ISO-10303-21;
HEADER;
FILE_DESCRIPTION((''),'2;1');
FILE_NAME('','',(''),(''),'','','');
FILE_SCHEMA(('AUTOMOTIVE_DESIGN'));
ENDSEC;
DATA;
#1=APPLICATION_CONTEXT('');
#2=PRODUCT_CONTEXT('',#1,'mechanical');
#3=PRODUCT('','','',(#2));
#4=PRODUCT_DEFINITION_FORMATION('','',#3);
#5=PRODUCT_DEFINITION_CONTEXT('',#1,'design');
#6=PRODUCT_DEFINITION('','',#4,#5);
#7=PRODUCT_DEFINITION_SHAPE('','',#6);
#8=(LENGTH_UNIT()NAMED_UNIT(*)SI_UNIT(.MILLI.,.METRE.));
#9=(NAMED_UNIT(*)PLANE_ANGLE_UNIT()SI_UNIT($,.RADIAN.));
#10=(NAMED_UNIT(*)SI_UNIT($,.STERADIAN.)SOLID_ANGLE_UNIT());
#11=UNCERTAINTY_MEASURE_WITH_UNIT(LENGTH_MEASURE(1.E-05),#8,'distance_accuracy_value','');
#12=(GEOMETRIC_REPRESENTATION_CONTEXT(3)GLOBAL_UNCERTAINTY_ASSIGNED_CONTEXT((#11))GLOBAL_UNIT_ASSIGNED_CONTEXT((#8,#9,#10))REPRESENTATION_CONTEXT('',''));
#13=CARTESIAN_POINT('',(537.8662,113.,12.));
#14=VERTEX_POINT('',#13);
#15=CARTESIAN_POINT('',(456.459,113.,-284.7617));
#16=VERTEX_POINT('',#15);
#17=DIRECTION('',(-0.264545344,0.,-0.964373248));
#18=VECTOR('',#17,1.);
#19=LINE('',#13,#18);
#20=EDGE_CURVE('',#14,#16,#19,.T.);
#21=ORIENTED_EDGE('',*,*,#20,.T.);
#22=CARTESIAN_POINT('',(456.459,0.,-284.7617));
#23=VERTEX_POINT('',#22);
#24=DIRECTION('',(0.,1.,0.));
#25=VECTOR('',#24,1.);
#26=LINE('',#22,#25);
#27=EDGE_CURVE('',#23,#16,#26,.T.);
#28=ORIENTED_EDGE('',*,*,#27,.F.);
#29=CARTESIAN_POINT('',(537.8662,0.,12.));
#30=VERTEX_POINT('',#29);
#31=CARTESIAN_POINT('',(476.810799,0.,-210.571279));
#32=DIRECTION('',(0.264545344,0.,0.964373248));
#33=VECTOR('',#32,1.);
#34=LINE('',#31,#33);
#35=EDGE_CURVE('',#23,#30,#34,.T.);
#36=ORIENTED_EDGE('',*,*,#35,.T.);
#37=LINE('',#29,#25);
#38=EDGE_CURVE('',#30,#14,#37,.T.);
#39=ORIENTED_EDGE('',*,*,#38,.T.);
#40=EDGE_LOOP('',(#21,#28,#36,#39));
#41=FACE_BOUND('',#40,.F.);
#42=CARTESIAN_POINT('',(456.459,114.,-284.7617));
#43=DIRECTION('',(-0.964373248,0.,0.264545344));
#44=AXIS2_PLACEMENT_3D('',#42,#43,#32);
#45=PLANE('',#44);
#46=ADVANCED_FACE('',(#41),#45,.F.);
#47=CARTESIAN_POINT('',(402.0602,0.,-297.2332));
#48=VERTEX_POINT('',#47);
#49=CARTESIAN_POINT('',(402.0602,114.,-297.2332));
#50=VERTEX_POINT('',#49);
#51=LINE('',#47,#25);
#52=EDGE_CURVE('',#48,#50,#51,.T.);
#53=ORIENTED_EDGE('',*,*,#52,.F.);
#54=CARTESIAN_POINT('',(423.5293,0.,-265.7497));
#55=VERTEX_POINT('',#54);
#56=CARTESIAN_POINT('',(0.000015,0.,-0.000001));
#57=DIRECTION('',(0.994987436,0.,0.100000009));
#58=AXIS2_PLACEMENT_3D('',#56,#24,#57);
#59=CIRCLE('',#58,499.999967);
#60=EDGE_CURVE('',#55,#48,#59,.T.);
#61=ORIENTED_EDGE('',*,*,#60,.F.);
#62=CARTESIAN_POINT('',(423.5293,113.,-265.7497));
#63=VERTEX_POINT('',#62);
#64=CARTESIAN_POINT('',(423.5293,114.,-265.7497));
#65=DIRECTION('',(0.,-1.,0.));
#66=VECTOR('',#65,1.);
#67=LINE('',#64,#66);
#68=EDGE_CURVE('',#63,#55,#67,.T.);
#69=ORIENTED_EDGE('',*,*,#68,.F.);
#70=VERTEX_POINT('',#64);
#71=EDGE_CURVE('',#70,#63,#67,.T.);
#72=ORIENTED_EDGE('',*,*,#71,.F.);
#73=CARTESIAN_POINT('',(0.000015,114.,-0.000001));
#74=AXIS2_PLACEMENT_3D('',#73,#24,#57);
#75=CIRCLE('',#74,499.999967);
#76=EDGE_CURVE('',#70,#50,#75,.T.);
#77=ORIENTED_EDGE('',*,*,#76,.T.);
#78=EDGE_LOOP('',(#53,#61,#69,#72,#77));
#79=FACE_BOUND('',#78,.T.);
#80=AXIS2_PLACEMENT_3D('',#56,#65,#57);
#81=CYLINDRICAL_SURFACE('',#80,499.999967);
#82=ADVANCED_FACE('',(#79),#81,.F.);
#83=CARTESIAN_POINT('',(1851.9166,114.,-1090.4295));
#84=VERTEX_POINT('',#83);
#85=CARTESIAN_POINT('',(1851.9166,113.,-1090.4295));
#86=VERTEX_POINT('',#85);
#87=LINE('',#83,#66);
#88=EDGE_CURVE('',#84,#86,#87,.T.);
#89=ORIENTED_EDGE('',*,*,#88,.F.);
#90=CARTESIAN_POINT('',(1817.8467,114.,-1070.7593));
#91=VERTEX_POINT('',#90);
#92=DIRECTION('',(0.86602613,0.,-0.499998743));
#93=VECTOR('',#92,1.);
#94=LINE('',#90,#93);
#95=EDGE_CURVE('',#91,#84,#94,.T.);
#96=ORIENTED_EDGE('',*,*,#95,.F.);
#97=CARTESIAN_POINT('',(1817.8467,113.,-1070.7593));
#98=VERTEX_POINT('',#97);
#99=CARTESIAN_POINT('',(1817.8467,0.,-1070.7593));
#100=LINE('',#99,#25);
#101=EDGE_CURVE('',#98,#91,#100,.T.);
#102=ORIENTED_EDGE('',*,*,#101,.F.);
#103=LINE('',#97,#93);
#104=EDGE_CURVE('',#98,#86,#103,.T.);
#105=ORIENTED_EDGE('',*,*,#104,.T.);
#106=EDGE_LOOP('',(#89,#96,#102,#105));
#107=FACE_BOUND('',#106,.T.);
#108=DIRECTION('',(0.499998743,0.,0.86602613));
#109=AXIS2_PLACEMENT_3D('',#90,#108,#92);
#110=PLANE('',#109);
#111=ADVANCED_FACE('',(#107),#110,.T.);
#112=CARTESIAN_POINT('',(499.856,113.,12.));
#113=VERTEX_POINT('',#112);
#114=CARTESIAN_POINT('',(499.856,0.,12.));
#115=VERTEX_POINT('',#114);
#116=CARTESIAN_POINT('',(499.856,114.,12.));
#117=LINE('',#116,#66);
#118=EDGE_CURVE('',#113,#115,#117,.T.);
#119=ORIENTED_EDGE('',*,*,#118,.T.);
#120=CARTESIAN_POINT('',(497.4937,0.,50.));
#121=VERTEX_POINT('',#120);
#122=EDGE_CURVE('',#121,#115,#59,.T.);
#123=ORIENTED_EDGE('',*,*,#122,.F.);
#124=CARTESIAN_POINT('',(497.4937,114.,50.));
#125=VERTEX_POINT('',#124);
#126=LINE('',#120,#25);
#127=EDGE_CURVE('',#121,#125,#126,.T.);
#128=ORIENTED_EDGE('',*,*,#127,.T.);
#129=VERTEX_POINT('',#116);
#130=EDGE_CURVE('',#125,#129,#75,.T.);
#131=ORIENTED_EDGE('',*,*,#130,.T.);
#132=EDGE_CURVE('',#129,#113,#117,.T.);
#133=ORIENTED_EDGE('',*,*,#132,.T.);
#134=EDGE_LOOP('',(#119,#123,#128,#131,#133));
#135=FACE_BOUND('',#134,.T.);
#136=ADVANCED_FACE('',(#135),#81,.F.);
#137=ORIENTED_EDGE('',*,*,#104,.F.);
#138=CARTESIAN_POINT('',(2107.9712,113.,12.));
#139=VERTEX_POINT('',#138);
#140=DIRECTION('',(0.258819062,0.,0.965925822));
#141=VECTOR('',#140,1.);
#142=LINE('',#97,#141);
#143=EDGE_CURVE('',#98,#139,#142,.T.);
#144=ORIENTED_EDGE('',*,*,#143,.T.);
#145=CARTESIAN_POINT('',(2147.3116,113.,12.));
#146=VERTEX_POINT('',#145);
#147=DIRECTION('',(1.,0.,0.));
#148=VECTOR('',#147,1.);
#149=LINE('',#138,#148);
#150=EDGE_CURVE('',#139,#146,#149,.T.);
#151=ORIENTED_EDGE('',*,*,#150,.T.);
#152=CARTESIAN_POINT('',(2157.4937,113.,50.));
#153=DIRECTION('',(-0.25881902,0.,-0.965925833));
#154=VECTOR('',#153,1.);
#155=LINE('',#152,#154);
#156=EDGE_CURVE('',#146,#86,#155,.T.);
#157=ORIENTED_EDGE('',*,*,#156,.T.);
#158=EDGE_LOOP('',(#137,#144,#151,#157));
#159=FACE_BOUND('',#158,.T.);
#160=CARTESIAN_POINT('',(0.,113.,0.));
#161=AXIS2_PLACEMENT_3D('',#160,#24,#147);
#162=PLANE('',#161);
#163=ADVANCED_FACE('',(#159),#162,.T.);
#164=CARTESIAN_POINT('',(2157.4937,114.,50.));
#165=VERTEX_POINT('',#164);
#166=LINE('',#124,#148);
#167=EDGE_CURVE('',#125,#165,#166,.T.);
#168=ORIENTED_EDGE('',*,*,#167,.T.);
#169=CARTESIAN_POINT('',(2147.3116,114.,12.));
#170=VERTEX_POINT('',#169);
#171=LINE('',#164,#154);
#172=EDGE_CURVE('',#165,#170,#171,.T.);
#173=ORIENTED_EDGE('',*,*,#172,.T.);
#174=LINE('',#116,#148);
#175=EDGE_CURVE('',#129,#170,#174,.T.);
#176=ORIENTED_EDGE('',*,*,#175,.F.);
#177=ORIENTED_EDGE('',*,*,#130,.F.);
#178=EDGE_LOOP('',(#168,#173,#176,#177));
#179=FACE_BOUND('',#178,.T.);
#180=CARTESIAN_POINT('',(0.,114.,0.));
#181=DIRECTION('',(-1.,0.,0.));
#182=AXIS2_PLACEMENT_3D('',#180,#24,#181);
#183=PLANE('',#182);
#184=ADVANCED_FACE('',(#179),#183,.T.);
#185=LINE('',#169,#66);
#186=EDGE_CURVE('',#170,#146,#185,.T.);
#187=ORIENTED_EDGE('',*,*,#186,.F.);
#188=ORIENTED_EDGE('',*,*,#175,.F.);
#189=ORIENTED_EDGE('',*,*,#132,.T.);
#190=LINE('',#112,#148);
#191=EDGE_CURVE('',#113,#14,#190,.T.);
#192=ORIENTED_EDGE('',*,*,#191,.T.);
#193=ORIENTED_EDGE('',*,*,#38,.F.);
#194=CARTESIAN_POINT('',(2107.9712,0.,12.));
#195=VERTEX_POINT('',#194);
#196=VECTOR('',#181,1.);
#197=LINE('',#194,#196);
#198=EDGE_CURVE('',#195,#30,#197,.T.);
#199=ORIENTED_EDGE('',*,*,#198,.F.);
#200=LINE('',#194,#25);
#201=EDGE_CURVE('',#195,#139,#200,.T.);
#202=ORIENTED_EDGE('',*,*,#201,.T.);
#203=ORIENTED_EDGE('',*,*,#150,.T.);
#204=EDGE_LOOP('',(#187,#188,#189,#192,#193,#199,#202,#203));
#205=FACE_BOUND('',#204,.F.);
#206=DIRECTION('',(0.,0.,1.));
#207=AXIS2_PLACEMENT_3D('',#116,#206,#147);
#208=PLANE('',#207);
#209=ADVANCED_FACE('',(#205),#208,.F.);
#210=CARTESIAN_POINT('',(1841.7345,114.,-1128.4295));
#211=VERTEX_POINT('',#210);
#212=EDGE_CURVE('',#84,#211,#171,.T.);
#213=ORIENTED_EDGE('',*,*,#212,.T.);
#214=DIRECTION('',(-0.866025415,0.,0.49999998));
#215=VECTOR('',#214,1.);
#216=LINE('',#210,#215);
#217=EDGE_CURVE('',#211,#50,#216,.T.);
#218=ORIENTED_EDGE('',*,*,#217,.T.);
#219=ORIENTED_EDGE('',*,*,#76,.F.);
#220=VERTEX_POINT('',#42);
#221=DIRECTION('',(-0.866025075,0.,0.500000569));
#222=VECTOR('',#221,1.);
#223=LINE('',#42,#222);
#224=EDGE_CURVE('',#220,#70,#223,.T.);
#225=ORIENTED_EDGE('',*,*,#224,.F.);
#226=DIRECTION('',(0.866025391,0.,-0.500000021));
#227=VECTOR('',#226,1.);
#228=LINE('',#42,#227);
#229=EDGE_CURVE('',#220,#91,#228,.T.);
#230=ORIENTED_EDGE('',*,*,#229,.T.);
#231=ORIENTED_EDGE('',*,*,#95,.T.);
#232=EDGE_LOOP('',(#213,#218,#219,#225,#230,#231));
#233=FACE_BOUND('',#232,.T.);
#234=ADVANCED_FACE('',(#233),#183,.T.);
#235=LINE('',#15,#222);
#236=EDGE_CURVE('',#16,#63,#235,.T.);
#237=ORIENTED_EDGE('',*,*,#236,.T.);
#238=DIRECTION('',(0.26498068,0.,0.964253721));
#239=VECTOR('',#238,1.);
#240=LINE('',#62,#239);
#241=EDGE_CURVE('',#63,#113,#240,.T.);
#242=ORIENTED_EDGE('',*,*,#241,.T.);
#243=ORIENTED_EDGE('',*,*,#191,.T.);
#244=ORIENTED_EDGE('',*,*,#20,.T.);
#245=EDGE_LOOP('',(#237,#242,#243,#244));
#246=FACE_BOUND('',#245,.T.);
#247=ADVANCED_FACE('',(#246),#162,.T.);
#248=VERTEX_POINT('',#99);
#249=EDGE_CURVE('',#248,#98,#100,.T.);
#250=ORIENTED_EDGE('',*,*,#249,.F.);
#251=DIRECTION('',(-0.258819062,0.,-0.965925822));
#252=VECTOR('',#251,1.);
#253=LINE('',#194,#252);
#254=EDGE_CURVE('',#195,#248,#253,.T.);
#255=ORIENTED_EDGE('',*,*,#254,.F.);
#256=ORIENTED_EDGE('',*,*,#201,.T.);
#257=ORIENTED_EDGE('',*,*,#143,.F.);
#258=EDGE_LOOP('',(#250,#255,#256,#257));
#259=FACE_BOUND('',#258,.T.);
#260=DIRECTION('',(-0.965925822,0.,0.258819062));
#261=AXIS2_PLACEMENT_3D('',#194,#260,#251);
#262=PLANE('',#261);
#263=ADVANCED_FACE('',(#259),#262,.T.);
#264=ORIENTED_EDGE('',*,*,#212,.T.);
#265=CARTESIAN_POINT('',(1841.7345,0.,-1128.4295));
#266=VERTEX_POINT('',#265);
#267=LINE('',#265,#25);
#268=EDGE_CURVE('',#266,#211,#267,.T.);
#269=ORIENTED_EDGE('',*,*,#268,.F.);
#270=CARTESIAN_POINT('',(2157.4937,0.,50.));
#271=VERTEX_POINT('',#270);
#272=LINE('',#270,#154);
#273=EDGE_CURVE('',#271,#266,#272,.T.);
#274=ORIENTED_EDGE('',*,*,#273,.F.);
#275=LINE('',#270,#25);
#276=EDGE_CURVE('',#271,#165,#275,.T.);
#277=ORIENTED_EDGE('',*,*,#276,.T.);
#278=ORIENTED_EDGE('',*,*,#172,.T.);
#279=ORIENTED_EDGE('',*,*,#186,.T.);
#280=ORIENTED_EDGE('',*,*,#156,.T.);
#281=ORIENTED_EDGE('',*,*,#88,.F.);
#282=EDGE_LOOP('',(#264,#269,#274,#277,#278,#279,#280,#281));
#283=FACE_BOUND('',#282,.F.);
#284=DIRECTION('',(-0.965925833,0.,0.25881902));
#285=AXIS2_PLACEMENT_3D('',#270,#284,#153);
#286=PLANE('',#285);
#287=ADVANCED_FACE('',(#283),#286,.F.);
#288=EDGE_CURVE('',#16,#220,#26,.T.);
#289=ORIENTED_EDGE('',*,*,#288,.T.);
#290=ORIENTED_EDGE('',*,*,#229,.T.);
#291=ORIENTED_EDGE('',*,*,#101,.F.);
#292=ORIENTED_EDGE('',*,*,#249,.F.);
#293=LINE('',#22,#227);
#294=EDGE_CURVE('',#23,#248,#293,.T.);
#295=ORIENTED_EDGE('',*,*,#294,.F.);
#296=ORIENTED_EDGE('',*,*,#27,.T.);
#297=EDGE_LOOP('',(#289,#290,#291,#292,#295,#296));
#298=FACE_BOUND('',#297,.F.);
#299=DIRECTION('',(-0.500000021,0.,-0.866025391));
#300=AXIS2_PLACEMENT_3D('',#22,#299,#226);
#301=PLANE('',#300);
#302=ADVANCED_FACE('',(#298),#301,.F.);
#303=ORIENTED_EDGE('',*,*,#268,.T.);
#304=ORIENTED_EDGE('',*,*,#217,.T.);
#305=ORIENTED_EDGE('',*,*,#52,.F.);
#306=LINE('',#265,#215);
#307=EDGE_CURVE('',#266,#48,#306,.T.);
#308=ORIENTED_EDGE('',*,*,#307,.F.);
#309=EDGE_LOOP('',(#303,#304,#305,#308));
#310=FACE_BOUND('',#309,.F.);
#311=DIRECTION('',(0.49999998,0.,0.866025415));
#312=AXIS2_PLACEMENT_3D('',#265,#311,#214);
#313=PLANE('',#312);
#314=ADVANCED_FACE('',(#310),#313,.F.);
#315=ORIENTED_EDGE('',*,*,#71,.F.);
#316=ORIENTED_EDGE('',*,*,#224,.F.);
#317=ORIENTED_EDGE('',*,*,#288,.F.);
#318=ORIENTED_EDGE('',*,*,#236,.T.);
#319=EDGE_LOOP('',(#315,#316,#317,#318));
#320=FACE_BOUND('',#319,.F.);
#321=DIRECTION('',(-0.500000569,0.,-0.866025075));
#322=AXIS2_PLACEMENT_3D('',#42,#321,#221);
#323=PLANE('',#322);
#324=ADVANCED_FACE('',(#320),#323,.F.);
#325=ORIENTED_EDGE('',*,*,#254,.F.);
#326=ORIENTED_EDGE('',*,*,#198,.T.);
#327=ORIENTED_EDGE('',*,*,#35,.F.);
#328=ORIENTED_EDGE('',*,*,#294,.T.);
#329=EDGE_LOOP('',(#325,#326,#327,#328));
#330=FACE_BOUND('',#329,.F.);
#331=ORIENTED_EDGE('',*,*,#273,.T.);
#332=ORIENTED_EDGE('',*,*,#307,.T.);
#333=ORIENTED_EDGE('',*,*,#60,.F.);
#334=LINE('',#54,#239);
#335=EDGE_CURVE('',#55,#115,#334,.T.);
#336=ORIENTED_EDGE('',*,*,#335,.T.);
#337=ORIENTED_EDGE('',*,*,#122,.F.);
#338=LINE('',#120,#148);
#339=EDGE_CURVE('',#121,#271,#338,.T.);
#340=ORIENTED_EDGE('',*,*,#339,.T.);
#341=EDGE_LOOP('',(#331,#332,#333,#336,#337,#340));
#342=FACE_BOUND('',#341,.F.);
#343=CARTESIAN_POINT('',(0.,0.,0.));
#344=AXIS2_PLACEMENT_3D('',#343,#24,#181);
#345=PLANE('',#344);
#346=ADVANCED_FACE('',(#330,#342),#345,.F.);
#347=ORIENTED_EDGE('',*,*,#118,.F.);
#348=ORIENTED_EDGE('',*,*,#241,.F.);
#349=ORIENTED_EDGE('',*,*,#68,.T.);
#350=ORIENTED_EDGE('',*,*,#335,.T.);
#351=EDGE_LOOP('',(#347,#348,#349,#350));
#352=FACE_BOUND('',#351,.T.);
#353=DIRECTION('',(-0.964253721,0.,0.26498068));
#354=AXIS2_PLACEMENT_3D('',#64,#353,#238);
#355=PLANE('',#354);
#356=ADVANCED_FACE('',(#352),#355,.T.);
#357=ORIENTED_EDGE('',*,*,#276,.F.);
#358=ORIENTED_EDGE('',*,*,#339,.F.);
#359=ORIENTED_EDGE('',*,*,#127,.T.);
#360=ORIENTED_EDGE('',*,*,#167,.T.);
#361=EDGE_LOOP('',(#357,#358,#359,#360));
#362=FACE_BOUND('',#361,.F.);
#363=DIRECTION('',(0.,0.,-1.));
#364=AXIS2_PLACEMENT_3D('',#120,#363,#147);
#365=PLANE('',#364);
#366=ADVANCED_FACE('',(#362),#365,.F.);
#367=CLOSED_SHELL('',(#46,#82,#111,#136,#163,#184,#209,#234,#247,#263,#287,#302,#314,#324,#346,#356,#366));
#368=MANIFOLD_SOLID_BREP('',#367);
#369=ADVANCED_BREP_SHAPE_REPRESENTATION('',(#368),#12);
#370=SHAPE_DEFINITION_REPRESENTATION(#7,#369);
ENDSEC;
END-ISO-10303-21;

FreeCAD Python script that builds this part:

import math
import FreeCAD as App
import Part
import Sketcher

V = App.Vector
Q = App.Units.Quantity

doc = App.newDocument("Part")
params = doc.addObject("Spreadsheet::Sheet", "Params")
for row, (alias, value) in enumerate([
    ("sketch1_radius", "500 mm"),
    ("sketch1_width", "1660 mm"),
    ("sketch1_length", "1220 mm"),
    ("sketch1_radius2", "538 mm"),
    ("pad1_length", "114 mm"),
    ("sketch2_radius", "500 mm"),
    ("pad2_length", "114 mm"),
    ("sketch3_radius", "538 mm"),
    ("pocket1_length", "3500 mm"),
    ("pocket2_length", "1 mm"),
    ("pocket3_length", "1 mm"),
], start=1):
    params.set(f"A{row}", alias)
    params.set(f"B{row}", "=" + value)
    params.setAlias(f"B{row}", alias)

body = doc.addObject("PartDesign::Body", "Body")

sketch1 = doc.addObject("Sketcher::SketchObject", "Sketch")
body.addObject(sketch1)
sketch1.AttachmentSupport = (doc.XZ_Plane, [""])
sketch1.MapMode = "FlatFace"
sketch1.addGeometry([
    Part.ArcOfCircle(Part.Circle(V(0, 0, 0), V(0, 0, 1), 499.999982), math.radians(-36.474604), math.radians(5.739171)),
    Part.LineSegment(V(497.4937, 50, 0), V(2157.4937, 50, 0)),
    Part.LineSegment(V(2157.4937, 50, 0), V(1841.7345, -1128.4295, 0)),
    Part.LineSegment(V(1841.7345, -1128.4295, 0), V(402.0602, -297.2332, 0)),
    Part.LineSegment(V(2107.9712, 12, 0), V(537.8662, 12, 0)),
    Part.ArcOfCircle(Part.Circle(V(0, 0, 0), V(0, 0, 1), 538.000046), math.radians(-31.957955), math.radians(1.278079)),
    Part.LineSegment(V(456.459, -284.7617, 0), V(1817.8467, -1070.7593, 0)),
    Part.LineSegment(V(1817.8467, -1070.7593, 0), V(2107.9712, 12, 0)),
], False)
sketch1.addConstraint([
    Sketcher.Constraint("Coincident", 0, 2, 1, 1),
    Sketcher.Constraint("Coincident", 1, 2, 2, 1),
    Sketcher.Constraint("Coincident", 2, 2, 3, 1),
    Sketcher.Constraint("Coincident", 3, 2, 0, 1),
    Sketcher.Constraint("Coincident", 4, 2, 5, 2),
    Sketcher.Constraint("Coincident", 5, 1, 6, 1),
    Sketcher.Constraint("Coincident", 6, 2, 7, 1),
    Sketcher.Constraint("Coincident", 7, 2, 4, 1),
    Sketcher.Constraint("Horizontal", 1),
    Sketcher.Constraint("Horizontal", 4),
    Sketcher.Constraint("Coincident", 0, 3, -1, 1),
    Sketcher.Constraint("Coincident", 5, 3, -1, 1),
    Sketcher.Constraint("Parallel", 3, 6),
    Sketcher.Constraint("Parallel", 2, 7),
    Sketcher.Constraint("Radius", 0, 500.0),
    Sketcher.Constraint("DistanceX", 1, 1, 1, 2, 1660.0),
    Sketcher.Constraint("Angle", 3, Q("150 deg")),
    Sketcher.Constraint("Angle", 7, Q("75 deg")),
    Sketcher.Constraint("Distance", 2, 1220.0),
    Sketcher.Constraint("DistanceY", -1, 1, 1, 2, 50.0),
    Sketcher.Constraint("Radius", 5, 538.0),
    Sketcher.Constraint("DistanceY", -1, 1, 4, 2, 12.0),
    Sketcher.Constraint("DistanceX", 4, 2, 4, 1, 1570.105),
    Sketcher.Constraint("Distance", 7, 1120.955),
])
sketch1.setExpression("Constraints[14]", "Params.sketch1_radius")
sketch1.setExpression("Constraints[15]", "Params.sketch1_width")
sketch1.setExpression("Constraints[18]", "Params.sketch1_length")
sketch1.setExpression("Constraints[20]", "Params.sketch1_radius2")
pad1 = doc.addObject("PartDesign::Pad", "Pad")
body.addObject(pad1)
pad1.Profile = sketch1
pad1.setExpression("Length", "Params.pad1_length")
pad1.Reversed = True

sketch2 = doc.addObject("Sketcher::SketchObject", "Sketch001")
body.addObject(sketch2)
sketch2.AttachmentSupport = (doc.XZ_Plane, [""])
sketch2.MapMode = "FlatFace"
sketch2.AttachmentOffset = App.Placement(V(0, 0, -114), App.Rotation())
sketch2.addGeometry([
    Part.LineSegment(V(423.5293, -265.7497, 0), V(499.856, 12, 0)),
    Part.ArcOfCircle(Part.Circle(V(0, 0, 0), V(0, 0, 1), 499.999982), math.radians(-32.106821), math.radians(1.375231)),
], False)
sketch2.addConstraint([
    Sketcher.Constraint("Coincident", 0, 1, 1, 1),
    Sketcher.Constraint("Coincident", 1, 2, 0, 2),
    Sketcher.Constraint("Coincident", 1, 3, -1, 1),
    Sketcher.Constraint("Radius", 1, 500.0),
    Sketcher.Constraint("Distance", 0, 288.0463),
    Sketcher.Constraint("DistanceX", -1, 1, 0, 1, 423.5293),
])
sketch2.setExpression("Constraints[3]", "Params.sketch2_radius")
pad2 = doc.addObject("PartDesign::Pad", "Pad001")
body.addObject(pad2)
pad2.Profile = sketch2
pad2.setExpression("Length", "Params.pad2_length")

sketch3 = doc.addObject("Sketcher::SketchObject", "Sketch002")
body.addObject(sketch3)
sketch3.AttachmentSupport = (doc.XZ_Plane, [""])
sketch3.MapMode = "FlatFace"
sketch3.AttachmentOffset = App.Placement(V(0, 0, -114), App.Rotation())
sketch3.addGeometry([
    Part.LineSegment(V(456.459, -284.7617, 0), V(537.8662, 12, 0)),
    Part.ArcOfCircle(Part.Circle(V(0, 0, 0), V(0, 0, 1), 538.000046), math.radians(-31.957955), math.radians(1.278079)),
], False)
sketch3.addConstraint([
    Sketcher.Constraint("Coincident", 0, 1, 1, 1),
    Sketcher.Constraint("Coincident", 1, 2, 0, 2),
    Sketcher.Constraint("Coincident", 1, 3, -1, 1),
    Sketcher.Constraint("Radius", 1, 538.0),
    Sketcher.Constraint("Angle", 0, Q("74.66 deg")),
    Sketcher.Constraint("Distance", 0, 307.725),
])
sketch3.setExpression("Constraints[3]", "Params.sketch3_radius")
pocket1 = doc.addObject("PartDesign::Pocket", "Pocket")
body.addObject(pocket1)
pocket1.Profile = sketch3
pocket1.setExpression("Length", "Params.pocket1_length")
pocket1.Reversed = True

sketch4 = doc.addObject("Sketcher::SketchObject", "Sketch003")
body.addObject(sketch4)
sketch4.AttachmentSupport = (doc.XZ_Plane, [""])
sketch4.MapMode = "FlatFace"
sketch4.AttachmentOffset = App.Placement(V(0, 0, -114), App.Rotation())
sketch4.addGeometry([
    Part.LineSegment(V(499.856, 12, 0), V(537.8662, 12, 0)),
    Part.LineSegment(V(537.8662, 12, 0), V(456.459, -284.7617, 0)),
    Part.LineSegment(V(456.459, -284.7617, 0), V(423.5293, -265.7497, 0)),
    Part.LineSegment(V(423.5293, -265.7497, 0), V(499.856, 12, 0)),
], False)
sketch4.addConstraint([
    Sketcher.Constraint("Coincident", 0, 2, 1, 1),
    Sketcher.Constraint("Coincident", 1, 2, 2, 1),
    Sketcher.Constraint("Coincident", 2, 2, 3, 1),
    Sketcher.Constraint("Coincident", 3, 2, 0, 1),
    Sketcher.Constraint("Horizontal", 0),
    Sketcher.Constraint("DistanceY", -1, 1, 0, 2, 12.0),
    Sketcher.Constraint("Distance", 1, 307.725),
    Sketcher.Constraint("Distance", 2, 38.024),
    Sketcher.Constraint("DistanceX", 0, 1, 0, 2, 38.0102),
    Sketcher.Constraint("DistanceX", -1, 1, 1, 2, 456.459),
    Sketcher.Constraint("DistanceX", -1, 1, 3, 2, 499.856),
    Sketcher.Constraint("DistanceY", 1, 2, 2, 2, 19.012),
])
pocket2 = doc.addObject("PartDesign::Pocket", "Pocket001")
body.addObject(pocket2)
pocket2.Profile = sketch4
pocket2.setExpression("Length", "Params.pocket2_length")
pocket2.Reversed = True

sketch5 = doc.addObject("Sketcher::SketchObject", "Sketch004")
body.addObject(sketch5)
sketch5.AttachmentSupport = (doc.XZ_Plane, [""])
sketch5.MapMode = "FlatFace"
sketch5.AttachmentOffset = App.Placement(V(0, 0, -114), App.Rotation())
sketch5.addGeometry([
    Part.LineSegment(V(1851.9166, -1090.4295, 0), V(1817.8467, -1070.7593, 0)),
    Part.LineSegment(V(1817.8467, -1070.7593, 0), V(2107.9712, 12, 0)),
    Part.LineSegment(V(2107.9712, 12, 0), V(2147.3116, 12, 0)),
    Part.LineSegment(V(2147.31163, 11.999992, 0), V(1851.91657, -1090.429492, 0)),
], False)
sketch5.addConstraint([
    Sketcher.Constraint("Coincident", 0, 2, 1, 1),
    Sketcher.Constraint("Coincident", 1, 2, 2, 1),
    Sketcher.Constraint("Coincident", 2, 2, 3, 1),
    Sketcher.Constraint("Coincident", 3, 2, 0, 1),
    Sketcher.Constraint("Horizontal", 2),
    Sketcher.Constraint("Parallel", 1, 3),
    Sketcher.Constraint("Angle", 0, Q("150 deg")),
    Sketcher.Constraint("Angle", 1, Q("75 deg")),
    Sketcher.Constraint("DistanceY", -1, 1, 1, 2, 12.0),
    Sketcher.Constraint("Distance", 1, 1120.955),
    Sketcher.Constraint("Distance", 3, 1141.319),
    Sketcher.Constraint("DistanceX", -1, 1, 0, 2, 1817.8467),
])
pocket3 = doc.addObject("PartDesign::Pocket", "Pocket002")
body.addObject(pocket3)
pocket3.Profile = sketch5
pocket3.setExpression("Length", "Params.pocket3_length")
pocket3.Reversed = True

doc.recompute()
